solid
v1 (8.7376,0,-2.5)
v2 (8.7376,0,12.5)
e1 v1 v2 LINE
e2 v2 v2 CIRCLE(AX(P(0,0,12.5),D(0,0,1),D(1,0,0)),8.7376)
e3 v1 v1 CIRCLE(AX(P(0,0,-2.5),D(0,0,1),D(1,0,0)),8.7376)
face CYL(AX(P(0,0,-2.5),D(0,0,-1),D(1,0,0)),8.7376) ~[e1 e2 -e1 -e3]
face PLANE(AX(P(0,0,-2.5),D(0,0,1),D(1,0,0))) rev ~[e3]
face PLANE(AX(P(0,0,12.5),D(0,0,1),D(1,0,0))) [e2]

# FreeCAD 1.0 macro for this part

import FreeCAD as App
import Part
import Sketcher

V = App.Vector
Q = App.Units.Quantity

doc = App.newDocument("Part")
body = doc.addObject("PartDesign::Body", "Body")

sketch1 = doc.addObject("Sketcher::SketchObject", "Sketch")
body.addObject(sketch1)
sketch1.AttachmentSupport = (doc.XY_Plane, [""])
sketch1.MapMode = "FlatFace"
sketch1.AttachmentOffset = App.Placement(V(0, 0, -2.5), App.Rotation())
sketch1.addGeometry(Part.Circle(V(0, 0, 0), V(0, 0, 1), 9), False)
sketch1.addConstraint([
    Sketcher.Constraint("Coincident", 0, 3, -1, 1),
    Sketcher.Constraint("Diameter", 0, Q("17.4752 mm")),
])
pad1 = doc.addObject("PartDesign::Pad", "Pad")
body.addObject(pad1)
pad1.Profile = sketch1
pad1.Length = 15

doc.recompute()
